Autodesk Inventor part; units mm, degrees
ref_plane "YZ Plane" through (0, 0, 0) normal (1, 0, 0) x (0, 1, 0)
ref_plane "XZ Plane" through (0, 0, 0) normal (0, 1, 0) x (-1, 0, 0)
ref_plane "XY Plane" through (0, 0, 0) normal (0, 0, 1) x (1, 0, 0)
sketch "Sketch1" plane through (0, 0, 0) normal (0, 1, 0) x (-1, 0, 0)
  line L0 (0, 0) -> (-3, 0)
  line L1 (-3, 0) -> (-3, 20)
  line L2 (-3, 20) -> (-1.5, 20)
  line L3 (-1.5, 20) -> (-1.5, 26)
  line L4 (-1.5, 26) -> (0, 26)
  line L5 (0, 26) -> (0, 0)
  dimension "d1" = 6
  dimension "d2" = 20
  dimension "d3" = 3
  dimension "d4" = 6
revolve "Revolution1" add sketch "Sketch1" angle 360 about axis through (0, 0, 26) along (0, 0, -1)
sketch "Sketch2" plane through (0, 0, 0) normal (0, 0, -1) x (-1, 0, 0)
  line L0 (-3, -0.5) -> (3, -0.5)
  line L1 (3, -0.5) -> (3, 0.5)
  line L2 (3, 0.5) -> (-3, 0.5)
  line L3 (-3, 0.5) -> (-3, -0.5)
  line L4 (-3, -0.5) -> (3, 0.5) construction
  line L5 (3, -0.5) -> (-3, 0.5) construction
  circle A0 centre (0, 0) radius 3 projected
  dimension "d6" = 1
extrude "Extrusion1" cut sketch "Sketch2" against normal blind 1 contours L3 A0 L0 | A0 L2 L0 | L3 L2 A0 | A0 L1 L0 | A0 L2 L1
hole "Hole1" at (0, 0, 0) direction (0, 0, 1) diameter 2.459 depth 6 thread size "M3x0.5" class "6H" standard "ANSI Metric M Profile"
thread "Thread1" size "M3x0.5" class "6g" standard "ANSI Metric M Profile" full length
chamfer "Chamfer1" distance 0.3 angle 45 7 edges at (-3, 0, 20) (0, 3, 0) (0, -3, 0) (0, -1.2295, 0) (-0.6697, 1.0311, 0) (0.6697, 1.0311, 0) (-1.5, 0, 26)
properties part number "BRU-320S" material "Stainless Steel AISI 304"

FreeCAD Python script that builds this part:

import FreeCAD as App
import Part
import Sketcher
from FreeCAD import Vector
Q = App.Units.Quantity


def edges_at(feature, points):
    """Names of the edges that pass closest to the given points."""
    edges = feature.Shape.Edges
    near = lambda p: min(range(len(edges)), key=lambda i: edges[i].distToShape(Part.Vertex(*p))[0])
    return sorted({f"Edge{near(p) + 1}" for p in points})


def add_polygon(sketch, points):
    """Adds a closed chain of lines whose ends are joined by coincident constraints."""
    first, n = sketch.GeometryCount, len(points)
    for a, b in zip(points, points[1:] + points[:1]):
        sketch.addGeometry(Part.LineSegment(App.Vector(*a, 0), App.Vector(*b, 0)), False)
    for i in range(n):
        sketch.addConstraint(Sketcher.Constraint("Coincident", first + i, 2, first + (i + 1) % n, 1))

doc = App.newDocument("Part")
params = doc.addObject("Spreadsheet::Sheet", "Params")
for row, (alias, value) in enumerate([
    ("sketch1_width", "3 mm"),
    ("sketch1_height", "6 mm"),
    ("sketch1_height2", "20 mm"),
    ("revolution_angle", "360 deg"),
    ("sketch2_height", "1 mm"),
    ("sketch2_width", "6 mm"),
    ("pocket1_length", "1 mm"),
    ("hole_diameter", "2.459 mm"),
    ("hole_depth", "6 mm"),
    ("chamfer_size", "0.3 mm"),
], start=1):
    params.set(f"A{row}", alias)
    params.set(f"B{row}", "=" + value)
    params.setAlias(f"B{row}", alias)

body = doc.addObject("PartDesign::Body", "Body")

sketch1 = body.newObject("Sketcher::SketchObject", "Sketch")
sketch1.AttachmentSupport = (doc.getObject("XZ_Plane"), [""])
sketch1.MapMode = "FlatFace"
add_polygon(sketch1, [(3, 0), (0, 0), (0, 26), (1.5, 26), (1.5, 20), (3, 20)])
sketch1.addConstraint([
    Sketcher.Constraint("Horizontal", 0),
    Sketcher.Constraint("Vertical", 1),
    Sketcher.Constraint("Horizontal", 2),
    Sketcher.Constraint("Vertical", 3),
    Sketcher.Constraint("Horizontal", 4),
    Sketcher.Constraint("Vertical", 5),
    Sketcher.Constraint("Coincident", 0, 2, -1, 1),
    Sketcher.Constraint("Equal", 2, 4),
    Sketcher.Constraint("DistanceX", 0, 2, 0, 1, Q("3 mm")),
    Sketcher.Constraint("DistanceY", 3, 2, 3, 1, Q("6 mm")),
    Sketcher.Constraint("DistanceY", 5, 2, 5, 1, Q("20 mm")),
])
sketch1.setExpression("Constraints[14]", "Params.sketch1_width")
sketch1.setExpression("Constraints[15]", "Params.sketch1_height")
sketch1.setExpression("Constraints[16]", "Params.sketch1_height2")
revolution = body.newObject("PartDesign::Revolution", "Revolution")
revolution.Profile = sketch1
revolution.ReferenceAxis = (sketch1, ["V_Axis"])
revolution.setExpression("Angle", "Params.revolution_angle")

sketch2 = body.newObject("Sketcher::SketchObject", "Sketch001")
sketch2.AttachmentSupport = (doc.getObject("XY_Plane"), [""])
sketch2.MapMode = "FlatFace"
add_polygon(sketch2, [(3, -0.5), (-3, -0.5), (-3, 0.5), (3, 0.5)])
sketch2.addConstraint([
    Sketcher.Constraint("Horizontal", 0),
    Sketcher.Constraint("Vertical", 1),
    Sketcher.Constraint("Horizontal", 2),
    Sketcher.Constraint("Vertical", 3),
    Sketcher.Constraint("Symmetric", 0, 2, 2, 2, -1, 1),
    Sketcher.Constraint("DistanceY", 1, 1, 1, 2, Q("1 mm")),
    Sketcher.Constraint("DistanceX", 0, 2, 0, 1, Q("6 mm")),
])
sketch2.setExpression("Constraints[9]", "Params.sketch2_height")
sketch2.setExpression("Constraints[10]", "Params.sketch2_width")
pocket1 = body.newObject("PartDesign::Pocket", "Pocket")
pocket1.Profile = sketch2
pocket1.setExpression("Length", "Params.pocket1_length")
pocket1.Reversed = True

sketch3 = body.newObject("Sketcher::SketchObject", "Sketch002")
sketch3.AttachmentSupport = (doc.getObject("XY_Plane"), [""])
sketch3.MapMode = "FlatFace"
sketch3.addGeometry(Part.Circle(Vector(0, 0, 0), Vector(0, 0, 1), 1.2), False)
sketch3.addConstraint([
    Sketcher.Constraint("Coincident", 0, 3, -1, 1),
    Sketcher.Constraint("Diameter", 0, Q("2.459 mm")),
])
doc.recompute()
hole = body.newObject("PartDesign::Hole", "Hole")
hole.Profile = sketch3
hole.ThreadType = "None"
hole.setExpression("Diameter", "Params.hole_diameter")
hole.DepthType = "Dimension"
hole.setExpression("Depth", "Params.hole_depth")
hole.DrillPoint = "Flat"
hole.Reversed = True
doc.recompute()

chamfer = body.newObject("PartDesign::Chamfer", "Chamfer")
chamfer.Base = (hole, edges_at(hole, [
    (-3, 0, 20),
    (0, 3, 0),
    (0, -3, 0),
    (0, -1.23, 0),
    (-0.67, 1.031, 0),
    (0.67, 1.031, 0),
    (-1.5, 0, 26),
]))
chamfer.setExpression("Size", "Params.chamfer_size")

doc.recompute()
